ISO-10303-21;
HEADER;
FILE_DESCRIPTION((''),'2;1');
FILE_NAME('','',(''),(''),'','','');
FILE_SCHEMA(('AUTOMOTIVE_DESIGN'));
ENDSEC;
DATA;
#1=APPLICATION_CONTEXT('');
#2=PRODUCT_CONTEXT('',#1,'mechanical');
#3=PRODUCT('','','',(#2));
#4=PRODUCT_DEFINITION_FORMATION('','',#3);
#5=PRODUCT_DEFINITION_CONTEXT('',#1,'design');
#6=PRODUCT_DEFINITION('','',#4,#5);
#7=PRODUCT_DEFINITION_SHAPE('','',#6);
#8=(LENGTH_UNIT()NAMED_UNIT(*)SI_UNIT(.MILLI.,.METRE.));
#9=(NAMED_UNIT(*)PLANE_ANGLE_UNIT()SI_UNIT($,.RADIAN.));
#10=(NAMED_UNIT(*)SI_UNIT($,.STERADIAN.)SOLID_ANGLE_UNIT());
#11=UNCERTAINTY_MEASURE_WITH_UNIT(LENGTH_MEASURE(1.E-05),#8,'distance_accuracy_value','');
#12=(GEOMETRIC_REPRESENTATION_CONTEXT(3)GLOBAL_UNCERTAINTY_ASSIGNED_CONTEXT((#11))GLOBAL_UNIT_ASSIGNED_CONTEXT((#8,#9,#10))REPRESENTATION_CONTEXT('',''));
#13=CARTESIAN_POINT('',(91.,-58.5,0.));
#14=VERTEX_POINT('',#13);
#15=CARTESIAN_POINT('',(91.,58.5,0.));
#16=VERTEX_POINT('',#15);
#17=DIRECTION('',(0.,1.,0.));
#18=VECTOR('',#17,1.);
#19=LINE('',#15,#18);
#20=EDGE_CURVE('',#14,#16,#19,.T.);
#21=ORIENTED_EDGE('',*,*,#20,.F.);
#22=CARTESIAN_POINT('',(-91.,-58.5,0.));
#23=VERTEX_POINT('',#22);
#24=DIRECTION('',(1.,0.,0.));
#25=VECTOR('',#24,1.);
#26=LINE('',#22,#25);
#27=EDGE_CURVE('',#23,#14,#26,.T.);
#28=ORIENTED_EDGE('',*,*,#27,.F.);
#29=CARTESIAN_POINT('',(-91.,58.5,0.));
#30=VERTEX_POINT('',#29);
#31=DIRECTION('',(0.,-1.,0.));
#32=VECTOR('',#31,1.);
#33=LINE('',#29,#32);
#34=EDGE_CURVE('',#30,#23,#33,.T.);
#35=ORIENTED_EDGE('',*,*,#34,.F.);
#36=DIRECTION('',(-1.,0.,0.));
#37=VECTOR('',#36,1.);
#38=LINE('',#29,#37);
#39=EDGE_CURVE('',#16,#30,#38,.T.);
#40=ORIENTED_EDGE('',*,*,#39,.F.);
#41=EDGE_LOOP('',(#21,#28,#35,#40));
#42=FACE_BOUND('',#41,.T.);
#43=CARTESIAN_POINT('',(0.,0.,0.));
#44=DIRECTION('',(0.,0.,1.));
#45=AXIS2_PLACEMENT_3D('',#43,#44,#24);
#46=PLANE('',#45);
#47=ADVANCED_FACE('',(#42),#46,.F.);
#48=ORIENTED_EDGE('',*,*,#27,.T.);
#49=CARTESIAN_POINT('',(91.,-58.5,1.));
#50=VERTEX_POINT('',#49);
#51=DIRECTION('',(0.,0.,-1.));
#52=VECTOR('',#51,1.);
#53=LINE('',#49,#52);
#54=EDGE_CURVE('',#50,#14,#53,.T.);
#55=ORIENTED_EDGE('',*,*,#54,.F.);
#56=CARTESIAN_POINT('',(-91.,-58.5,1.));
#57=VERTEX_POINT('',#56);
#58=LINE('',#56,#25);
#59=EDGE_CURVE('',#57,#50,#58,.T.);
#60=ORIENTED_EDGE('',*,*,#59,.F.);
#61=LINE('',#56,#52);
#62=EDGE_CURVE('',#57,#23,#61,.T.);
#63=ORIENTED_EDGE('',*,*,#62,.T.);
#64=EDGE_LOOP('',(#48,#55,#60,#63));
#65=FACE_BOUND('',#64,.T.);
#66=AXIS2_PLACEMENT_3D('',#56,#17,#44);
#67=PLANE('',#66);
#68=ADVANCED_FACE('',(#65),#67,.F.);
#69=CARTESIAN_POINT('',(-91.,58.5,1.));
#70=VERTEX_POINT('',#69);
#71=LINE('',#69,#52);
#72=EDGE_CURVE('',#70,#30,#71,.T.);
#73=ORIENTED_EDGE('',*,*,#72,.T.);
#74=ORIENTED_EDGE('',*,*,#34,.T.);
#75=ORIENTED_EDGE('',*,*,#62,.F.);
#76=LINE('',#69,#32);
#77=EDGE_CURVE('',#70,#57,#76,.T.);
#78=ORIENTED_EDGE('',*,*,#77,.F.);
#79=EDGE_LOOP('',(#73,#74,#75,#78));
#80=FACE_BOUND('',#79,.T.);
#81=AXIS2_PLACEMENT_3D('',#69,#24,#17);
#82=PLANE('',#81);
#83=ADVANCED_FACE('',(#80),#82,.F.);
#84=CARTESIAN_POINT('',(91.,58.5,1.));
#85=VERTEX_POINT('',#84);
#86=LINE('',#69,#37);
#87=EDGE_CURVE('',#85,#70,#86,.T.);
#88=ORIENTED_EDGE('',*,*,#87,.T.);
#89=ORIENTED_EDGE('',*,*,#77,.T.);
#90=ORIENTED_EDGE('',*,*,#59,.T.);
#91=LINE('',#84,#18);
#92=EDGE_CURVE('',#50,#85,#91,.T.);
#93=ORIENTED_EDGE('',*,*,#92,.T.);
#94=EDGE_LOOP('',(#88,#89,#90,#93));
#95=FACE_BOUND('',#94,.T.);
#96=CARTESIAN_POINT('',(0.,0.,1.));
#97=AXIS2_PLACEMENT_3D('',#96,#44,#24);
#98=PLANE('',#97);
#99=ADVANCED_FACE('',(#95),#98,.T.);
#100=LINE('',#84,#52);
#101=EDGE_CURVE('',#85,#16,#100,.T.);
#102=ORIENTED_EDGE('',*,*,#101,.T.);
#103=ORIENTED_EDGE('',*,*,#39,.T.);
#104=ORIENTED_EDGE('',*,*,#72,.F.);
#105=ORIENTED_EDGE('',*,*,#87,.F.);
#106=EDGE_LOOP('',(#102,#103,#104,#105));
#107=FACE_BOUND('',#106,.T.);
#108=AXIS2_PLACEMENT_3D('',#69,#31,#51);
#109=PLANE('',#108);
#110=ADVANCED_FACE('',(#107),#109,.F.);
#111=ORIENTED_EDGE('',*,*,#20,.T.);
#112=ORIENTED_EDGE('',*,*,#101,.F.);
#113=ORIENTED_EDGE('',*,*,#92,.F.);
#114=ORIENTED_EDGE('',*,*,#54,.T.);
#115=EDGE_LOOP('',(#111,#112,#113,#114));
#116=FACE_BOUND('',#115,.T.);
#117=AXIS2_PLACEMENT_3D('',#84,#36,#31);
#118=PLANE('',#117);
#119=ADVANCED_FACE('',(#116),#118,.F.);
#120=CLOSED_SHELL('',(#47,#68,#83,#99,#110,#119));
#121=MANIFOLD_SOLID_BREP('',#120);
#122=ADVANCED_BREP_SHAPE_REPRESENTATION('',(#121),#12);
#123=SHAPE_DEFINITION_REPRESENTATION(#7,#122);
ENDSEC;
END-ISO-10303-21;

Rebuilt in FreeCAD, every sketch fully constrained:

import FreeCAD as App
import Part
import Sketcher
from FreeCAD import Vector
Q = App.Units.Quantity


def add_polygon(sketch, points):
    """Adds a closed chain of lines whose ends are joined by coincident constraints."""
    first, n = sketch.GeometryCount, len(points)
    for a, b in zip(points, points[1:] + points[:1]):
        sketch.addGeometry(Part.LineSegment(App.Vector(*a, 0), App.Vector(*b, 0)), False)
    for i in range(n):
        sketch.addConstraint(Sketcher.Constraint("Coincident", first + i, 2, first + (i + 1) % n, 1))

doc = App.newDocument("Part")
body = doc.addObject("PartDesign::Body", "Body")

sketch1 = body.newObject("Sketcher::SketchObject", "Sketch")
sketch1.AttachmentSupport = (doc.getObject("XY_Plane"), [""])
sketch1.MapMode = "FlatFace"
add_polygon(sketch1, [(-91, 58), (-91, -58), (91, -58), (91, 58)])
sketch1.addConstraint(Sketcher.Constraint("Vertical", 0))
sketch1.addConstraint(Sketcher.Constraint("Horizontal", 1))
sketch1.addConstraint(Sketcher.Constraint("Vertical", 2))
sketch1.addConstraint(Sketcher.Constraint("Horizontal", 3))
sketch1.addConstraint(Sketcher.Constraint("Symmetric", 0, 2, 2, 2, -1, 1))
sketch1.addConstraint(Sketcher.Constraint("DistanceX", 1, 1, 1, 2, Q("182 mm")))
sketch1.addConstraint(Sketcher.Constraint("DistanceY", 0, 2, 0, 1, Q("117 mm")))
pad1 = body.newObject("PartDesign::Pad", "Pad")
pad1.Profile = sketch1
pad1.Length = 1

doc.recompute()
